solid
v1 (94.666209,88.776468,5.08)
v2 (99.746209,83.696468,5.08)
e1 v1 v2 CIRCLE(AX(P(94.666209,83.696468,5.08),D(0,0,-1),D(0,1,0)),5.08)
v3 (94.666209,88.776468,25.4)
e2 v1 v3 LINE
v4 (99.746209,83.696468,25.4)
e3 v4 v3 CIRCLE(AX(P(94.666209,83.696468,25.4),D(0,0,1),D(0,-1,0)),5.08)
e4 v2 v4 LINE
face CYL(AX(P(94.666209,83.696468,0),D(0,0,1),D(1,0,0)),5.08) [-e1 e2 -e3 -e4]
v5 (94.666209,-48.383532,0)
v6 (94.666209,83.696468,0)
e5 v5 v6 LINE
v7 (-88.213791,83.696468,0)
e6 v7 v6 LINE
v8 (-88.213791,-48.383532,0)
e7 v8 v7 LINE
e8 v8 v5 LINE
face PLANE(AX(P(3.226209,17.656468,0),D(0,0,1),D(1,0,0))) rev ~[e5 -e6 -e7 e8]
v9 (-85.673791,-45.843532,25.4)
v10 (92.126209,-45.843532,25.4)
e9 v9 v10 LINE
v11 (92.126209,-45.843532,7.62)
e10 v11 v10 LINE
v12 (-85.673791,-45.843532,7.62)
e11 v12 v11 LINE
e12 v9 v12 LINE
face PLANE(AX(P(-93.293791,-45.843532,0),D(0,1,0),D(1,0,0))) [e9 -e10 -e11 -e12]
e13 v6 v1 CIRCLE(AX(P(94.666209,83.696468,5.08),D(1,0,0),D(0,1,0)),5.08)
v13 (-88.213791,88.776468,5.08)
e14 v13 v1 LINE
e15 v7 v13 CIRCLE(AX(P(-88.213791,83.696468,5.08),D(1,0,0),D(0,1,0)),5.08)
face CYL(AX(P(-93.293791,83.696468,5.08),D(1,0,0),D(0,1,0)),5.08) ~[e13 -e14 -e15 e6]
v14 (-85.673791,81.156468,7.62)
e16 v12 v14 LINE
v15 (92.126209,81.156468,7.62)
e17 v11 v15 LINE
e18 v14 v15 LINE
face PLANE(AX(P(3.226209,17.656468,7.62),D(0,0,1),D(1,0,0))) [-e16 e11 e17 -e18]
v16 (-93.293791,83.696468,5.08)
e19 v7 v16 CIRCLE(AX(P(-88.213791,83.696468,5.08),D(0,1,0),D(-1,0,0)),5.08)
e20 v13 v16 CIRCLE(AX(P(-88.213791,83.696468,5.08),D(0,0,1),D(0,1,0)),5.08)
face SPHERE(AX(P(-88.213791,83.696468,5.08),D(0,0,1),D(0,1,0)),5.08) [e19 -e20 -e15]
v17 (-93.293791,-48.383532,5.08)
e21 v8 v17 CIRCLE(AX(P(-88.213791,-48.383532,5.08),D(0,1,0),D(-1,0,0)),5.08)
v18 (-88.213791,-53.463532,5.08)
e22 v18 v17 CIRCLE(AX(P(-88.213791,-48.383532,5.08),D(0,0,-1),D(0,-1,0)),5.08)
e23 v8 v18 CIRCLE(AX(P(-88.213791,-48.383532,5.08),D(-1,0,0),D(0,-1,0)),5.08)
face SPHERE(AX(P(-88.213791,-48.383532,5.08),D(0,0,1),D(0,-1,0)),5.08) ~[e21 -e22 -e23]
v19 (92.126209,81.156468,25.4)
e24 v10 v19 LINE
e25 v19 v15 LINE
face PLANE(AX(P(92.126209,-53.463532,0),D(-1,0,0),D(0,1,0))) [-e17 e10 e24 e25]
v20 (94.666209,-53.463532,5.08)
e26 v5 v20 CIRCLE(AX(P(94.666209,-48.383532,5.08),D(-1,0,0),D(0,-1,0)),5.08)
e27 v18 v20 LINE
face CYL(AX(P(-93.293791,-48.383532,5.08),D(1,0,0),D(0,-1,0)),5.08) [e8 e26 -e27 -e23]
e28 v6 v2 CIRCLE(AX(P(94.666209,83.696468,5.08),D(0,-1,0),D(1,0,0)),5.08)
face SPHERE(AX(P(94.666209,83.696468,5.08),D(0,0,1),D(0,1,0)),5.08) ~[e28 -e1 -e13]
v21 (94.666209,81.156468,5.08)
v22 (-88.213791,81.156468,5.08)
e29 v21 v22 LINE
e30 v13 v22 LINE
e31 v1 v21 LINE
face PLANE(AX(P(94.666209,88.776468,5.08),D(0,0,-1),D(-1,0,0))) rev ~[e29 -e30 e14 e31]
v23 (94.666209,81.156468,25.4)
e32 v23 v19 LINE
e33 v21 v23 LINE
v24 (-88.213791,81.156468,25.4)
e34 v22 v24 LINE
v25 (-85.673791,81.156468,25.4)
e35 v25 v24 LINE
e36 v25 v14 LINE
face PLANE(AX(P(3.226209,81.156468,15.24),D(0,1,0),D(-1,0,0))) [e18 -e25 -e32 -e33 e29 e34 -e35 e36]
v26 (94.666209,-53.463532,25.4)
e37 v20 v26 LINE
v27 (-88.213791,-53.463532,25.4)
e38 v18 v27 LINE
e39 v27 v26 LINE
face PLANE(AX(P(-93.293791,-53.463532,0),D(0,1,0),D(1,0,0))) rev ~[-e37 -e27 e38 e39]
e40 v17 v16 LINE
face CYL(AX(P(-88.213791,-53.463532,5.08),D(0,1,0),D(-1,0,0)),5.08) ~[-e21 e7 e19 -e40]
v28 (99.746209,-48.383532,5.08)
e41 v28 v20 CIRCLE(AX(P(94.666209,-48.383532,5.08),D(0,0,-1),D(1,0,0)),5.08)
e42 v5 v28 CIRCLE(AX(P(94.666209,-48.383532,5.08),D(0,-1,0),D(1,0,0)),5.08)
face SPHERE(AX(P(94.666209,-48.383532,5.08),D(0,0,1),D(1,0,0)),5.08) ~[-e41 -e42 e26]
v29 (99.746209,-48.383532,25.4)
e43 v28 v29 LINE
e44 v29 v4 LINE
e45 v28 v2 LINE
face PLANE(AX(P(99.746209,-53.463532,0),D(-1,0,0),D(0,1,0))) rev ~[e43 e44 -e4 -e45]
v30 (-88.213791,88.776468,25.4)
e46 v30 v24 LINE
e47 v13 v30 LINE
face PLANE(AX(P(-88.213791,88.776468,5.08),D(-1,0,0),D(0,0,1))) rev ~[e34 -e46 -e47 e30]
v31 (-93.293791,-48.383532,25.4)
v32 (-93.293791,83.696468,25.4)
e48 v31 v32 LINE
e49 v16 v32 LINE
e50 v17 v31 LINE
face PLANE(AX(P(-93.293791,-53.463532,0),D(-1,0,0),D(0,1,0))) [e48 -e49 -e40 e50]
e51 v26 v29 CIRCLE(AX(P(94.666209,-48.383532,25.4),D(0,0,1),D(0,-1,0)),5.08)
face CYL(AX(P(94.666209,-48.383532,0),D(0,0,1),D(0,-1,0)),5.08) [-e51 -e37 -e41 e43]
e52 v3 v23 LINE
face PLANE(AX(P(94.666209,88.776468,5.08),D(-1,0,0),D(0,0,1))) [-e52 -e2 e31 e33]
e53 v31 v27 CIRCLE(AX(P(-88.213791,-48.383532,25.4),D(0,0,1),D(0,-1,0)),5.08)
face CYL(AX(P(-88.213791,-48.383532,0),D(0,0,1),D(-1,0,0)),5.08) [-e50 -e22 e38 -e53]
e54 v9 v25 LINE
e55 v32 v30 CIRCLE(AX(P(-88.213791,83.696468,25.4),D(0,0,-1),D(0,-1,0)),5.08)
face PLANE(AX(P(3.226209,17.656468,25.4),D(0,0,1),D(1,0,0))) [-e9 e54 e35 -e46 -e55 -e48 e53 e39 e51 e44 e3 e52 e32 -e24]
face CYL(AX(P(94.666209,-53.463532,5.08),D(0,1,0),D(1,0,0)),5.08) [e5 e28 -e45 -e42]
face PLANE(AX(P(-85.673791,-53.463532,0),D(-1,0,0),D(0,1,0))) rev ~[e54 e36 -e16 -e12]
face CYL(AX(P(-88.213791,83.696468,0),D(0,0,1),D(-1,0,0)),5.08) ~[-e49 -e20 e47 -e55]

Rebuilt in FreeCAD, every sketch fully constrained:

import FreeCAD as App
import Part
import Sketcher
from FreeCAD import Vector
Q = App.Units.Quantity


def edges_at(feature, points):
    """Names of the edges that pass closest to the given points."""
    edges = feature.Shape.Edges
    near = lambda p: min(range(len(edges)), key=lambda i: edges[i].distToShape(Part.Vertex(*p))[0])
    return sorted({f"Edge{near(p) + 1}" for p in points})


def faces_at(feature, points):
    """Names of the faces that lie closest to the given points."""
    faces = feature.Shape.Faces
    near = lambda p: min(range(len(faces)), key=lambda i: faces[i].distToShape(Part.Vertex(*p))[0])
    return sorted({f"Face{near(p) + 1}" for p in points})

doc = App.newDocument("Part")
params = doc.addObject("Spreadsheet::Sheet", "Params")
for row, (alias, value) in enumerate([
    ("sketch1_width", "7.6 in"),
    ("sketch1_height", "5.6 in"),
    ("pad1_length", "1 in"),
    ("thickness_wall", "0.3 in"),
    ("fillet_radius", "0.2 in"),
    ("sketch2_width", "7.2 in"),
    ("sketch2_height", "0.8 in"),
    ("pocket1_length", "0.3 in"),
], start=1):
    params.set(f"A{row}", alias)
    params.set(f"B{row}", "=" + value)
    params.setAlias(f"B{row}", alias)

body = doc.addObject("PartDesign::Body", "Body")

sketch1 = doc.addObject("Sketcher::SketchObject", "Sketch")
body.addObject(sketch1)
sketch1.AttachmentSupport = (doc.XY_Plane, [""])
sketch1.MapMode = "FlatFace"
sketch1.addGeometry(Part.LineSegment(Vector(-93, 89, 0), Vector(-93, -53, 0)), False)
sketch1.addGeometry(Part.LineSegment(Vector(-93, -53, 0), Vector(100, -53, 0)), False)
sketch1.addGeometry(Part.LineSegment(Vector(100, -53, 0), Vector(100, 89, 0)), False)
sketch1.addGeometry(Part.LineSegment(Vector(100, 89, 0), Vector(-93, 89, 0)), False)
sketch1.addConstraint(Sketcher.Constraint("Coincident", 0, 2, 1, 1))
sketch1.addConstraint(Sketcher.Constraint("Coincident", 1, 2, 2, 1))
sketch1.addConstraint(Sketcher.Constraint("Coincident", 2, 2, 3, 1))
sketch1.addConstraint(Sketcher.Constraint("Coincident", 3, 2, 0, 1))
sketch1.addConstraint(Sketcher.Constraint("Vertical", 0))
sketch1.addConstraint(Sketcher.Constraint("Horizontal", 1))
sketch1.addConstraint(Sketcher.Constraint("Vertical", 2))
sketch1.addConstraint(Sketcher.Constraint("Horizontal", 3))
sketch1.addConstraint(Sketcher.Constraint("DistanceX", 1, 1, 1, 2, Q("7.6 in")))
sketch1.addConstraint(Sketcher.Constraint("DistanceY", 0, 2, 0, 1, Q("5.6 in")))
sketch1.addConstraint(Sketcher.Constraint("DistanceX", 0, 2, -1, 1, Q("93.293791 mm")))
sketch1.addConstraint(Sketcher.Constraint("DistanceY", 0, 2, -1, 1, Q("53.463532 mm")))
sketch1.setExpression("Constraints[8]", "Params.sketch1_width")
sketch1.setExpression("Constraints[9]", "Params.sketch1_height")
pad1 = doc.addObject("PartDesign::Pad", "Pad")
body.addObject(pad1)
pad1.Profile = sketch1
pad1.setExpression("Length", "Params.pad1_length")
doc.recompute()

thickness = doc.addObject("PartDesign::Thickness", "Thickness")
body.addObject(thickness)
thickness.Base = (pad1, faces_at(pad1, [(3.226, 17.656, 25.4)]))
thickness.setExpression("Value", "Params.thickness_wall")
thickness.Reversed = True
thickness.Join = "Arc"
doc.recompute()

fillet = doc.addObject("PartDesign::Fillet", "Fillet")
body.addObject(fillet)
fillet.Base = (thickness, edges_at(thickness, [
    (-93.294, -53.464, 12.7),
    (-93.294, 88.776, 12.7),
    (99.746, 88.776, 12.7),
    (99.746, -53.464, 12.7),
    (3.226, 88.776, 0),
    (99.746, 17.656, 0),
    (3.226, -53.464, 0),
    (-93.294, 17.656, 0),
]))
fillet.setExpression("Radius", "Params.fillet_radius")

sketch2 = doc.addObject("Sketcher::SketchObject", "Sketch001")
body.addObject(sketch2)
sketch2.AttachmentSupport = (doc.XZ_Plane, [""])
sketch2.MapMode = "FlatFace"
sketch2.AttachmentOffset = App.Placement(Vector(0, 0, -88.776468), App.Rotation())
sketch2.addGeometry(Part.LineSegment(Vector(95, 25, 0), Vector(95, 5, 0)), False)
sketch2.addGeometry(Part.LineSegment(Vector(95, 5, 0), Vector(-88, 5, 0)), False)
sketch2.addGeometry(Part.LineSegment(Vector(-88, 5, 0), Vector(-88, 25, 0)), False)
sketch2.addGeometry(Part.LineSegment(Vector(-88, 25, 0), Vector(95, 25, 0)), False)
sketch2.addConstraint(Sketcher.Constraint("Coincident", 0, 2, 1, 1))
sketch2.addConstraint(Sketcher.Constraint("Coincident", 1, 2, 2, 1))
sketch2.addConstraint(Sketcher.Constraint("Coincident", 2, 2, 3, 1))
sketch2.addConstraint(Sketcher.Constraint("Coincident", 3, 2, 0, 1))
sketch2.addConstraint(Sketcher.Constraint("Vertical", 0))
sketch2.addConstraint(Sketcher.Constraint("Horizontal", 1))
sketch2.addConstraint(Sketcher.Constraint("Vertical", 2))
sketch2.addConstraint(Sketcher.Constraint("Horizontal", 3))
sketch2.addConstraint(Sketcher.Constraint("DistanceX", 1, 2, 1, 1, Q("7.2 in")))
sketch2.addConstraint(Sketcher.Constraint("DistanceY", 0, 2, 0, 1, Q("0.8 in")))
sketch2.addConstraint(Sketcher.Constraint("DistanceY", -1, 1, 2, 2, Q("1 in")))
sketch2.addConstraint(Sketcher.Constraint("DistanceX", -1, 1, 0, 2, Q("94.666209 mm")))
sketch2.setExpression("Constraints[8]", "Params.sketch2_width")
sketch2.setExpression("Constraints[9]", "Params.sketch2_height")
pocket1 = doc.addObject("PartDesign::Pocket", "Pocket")
body.addObject(pocket1)
pocket1.Profile = sketch2
pocket1.setExpression("Length", "Params.pocket1_length")
pocket1.Reversed = True

doc.recompute()
